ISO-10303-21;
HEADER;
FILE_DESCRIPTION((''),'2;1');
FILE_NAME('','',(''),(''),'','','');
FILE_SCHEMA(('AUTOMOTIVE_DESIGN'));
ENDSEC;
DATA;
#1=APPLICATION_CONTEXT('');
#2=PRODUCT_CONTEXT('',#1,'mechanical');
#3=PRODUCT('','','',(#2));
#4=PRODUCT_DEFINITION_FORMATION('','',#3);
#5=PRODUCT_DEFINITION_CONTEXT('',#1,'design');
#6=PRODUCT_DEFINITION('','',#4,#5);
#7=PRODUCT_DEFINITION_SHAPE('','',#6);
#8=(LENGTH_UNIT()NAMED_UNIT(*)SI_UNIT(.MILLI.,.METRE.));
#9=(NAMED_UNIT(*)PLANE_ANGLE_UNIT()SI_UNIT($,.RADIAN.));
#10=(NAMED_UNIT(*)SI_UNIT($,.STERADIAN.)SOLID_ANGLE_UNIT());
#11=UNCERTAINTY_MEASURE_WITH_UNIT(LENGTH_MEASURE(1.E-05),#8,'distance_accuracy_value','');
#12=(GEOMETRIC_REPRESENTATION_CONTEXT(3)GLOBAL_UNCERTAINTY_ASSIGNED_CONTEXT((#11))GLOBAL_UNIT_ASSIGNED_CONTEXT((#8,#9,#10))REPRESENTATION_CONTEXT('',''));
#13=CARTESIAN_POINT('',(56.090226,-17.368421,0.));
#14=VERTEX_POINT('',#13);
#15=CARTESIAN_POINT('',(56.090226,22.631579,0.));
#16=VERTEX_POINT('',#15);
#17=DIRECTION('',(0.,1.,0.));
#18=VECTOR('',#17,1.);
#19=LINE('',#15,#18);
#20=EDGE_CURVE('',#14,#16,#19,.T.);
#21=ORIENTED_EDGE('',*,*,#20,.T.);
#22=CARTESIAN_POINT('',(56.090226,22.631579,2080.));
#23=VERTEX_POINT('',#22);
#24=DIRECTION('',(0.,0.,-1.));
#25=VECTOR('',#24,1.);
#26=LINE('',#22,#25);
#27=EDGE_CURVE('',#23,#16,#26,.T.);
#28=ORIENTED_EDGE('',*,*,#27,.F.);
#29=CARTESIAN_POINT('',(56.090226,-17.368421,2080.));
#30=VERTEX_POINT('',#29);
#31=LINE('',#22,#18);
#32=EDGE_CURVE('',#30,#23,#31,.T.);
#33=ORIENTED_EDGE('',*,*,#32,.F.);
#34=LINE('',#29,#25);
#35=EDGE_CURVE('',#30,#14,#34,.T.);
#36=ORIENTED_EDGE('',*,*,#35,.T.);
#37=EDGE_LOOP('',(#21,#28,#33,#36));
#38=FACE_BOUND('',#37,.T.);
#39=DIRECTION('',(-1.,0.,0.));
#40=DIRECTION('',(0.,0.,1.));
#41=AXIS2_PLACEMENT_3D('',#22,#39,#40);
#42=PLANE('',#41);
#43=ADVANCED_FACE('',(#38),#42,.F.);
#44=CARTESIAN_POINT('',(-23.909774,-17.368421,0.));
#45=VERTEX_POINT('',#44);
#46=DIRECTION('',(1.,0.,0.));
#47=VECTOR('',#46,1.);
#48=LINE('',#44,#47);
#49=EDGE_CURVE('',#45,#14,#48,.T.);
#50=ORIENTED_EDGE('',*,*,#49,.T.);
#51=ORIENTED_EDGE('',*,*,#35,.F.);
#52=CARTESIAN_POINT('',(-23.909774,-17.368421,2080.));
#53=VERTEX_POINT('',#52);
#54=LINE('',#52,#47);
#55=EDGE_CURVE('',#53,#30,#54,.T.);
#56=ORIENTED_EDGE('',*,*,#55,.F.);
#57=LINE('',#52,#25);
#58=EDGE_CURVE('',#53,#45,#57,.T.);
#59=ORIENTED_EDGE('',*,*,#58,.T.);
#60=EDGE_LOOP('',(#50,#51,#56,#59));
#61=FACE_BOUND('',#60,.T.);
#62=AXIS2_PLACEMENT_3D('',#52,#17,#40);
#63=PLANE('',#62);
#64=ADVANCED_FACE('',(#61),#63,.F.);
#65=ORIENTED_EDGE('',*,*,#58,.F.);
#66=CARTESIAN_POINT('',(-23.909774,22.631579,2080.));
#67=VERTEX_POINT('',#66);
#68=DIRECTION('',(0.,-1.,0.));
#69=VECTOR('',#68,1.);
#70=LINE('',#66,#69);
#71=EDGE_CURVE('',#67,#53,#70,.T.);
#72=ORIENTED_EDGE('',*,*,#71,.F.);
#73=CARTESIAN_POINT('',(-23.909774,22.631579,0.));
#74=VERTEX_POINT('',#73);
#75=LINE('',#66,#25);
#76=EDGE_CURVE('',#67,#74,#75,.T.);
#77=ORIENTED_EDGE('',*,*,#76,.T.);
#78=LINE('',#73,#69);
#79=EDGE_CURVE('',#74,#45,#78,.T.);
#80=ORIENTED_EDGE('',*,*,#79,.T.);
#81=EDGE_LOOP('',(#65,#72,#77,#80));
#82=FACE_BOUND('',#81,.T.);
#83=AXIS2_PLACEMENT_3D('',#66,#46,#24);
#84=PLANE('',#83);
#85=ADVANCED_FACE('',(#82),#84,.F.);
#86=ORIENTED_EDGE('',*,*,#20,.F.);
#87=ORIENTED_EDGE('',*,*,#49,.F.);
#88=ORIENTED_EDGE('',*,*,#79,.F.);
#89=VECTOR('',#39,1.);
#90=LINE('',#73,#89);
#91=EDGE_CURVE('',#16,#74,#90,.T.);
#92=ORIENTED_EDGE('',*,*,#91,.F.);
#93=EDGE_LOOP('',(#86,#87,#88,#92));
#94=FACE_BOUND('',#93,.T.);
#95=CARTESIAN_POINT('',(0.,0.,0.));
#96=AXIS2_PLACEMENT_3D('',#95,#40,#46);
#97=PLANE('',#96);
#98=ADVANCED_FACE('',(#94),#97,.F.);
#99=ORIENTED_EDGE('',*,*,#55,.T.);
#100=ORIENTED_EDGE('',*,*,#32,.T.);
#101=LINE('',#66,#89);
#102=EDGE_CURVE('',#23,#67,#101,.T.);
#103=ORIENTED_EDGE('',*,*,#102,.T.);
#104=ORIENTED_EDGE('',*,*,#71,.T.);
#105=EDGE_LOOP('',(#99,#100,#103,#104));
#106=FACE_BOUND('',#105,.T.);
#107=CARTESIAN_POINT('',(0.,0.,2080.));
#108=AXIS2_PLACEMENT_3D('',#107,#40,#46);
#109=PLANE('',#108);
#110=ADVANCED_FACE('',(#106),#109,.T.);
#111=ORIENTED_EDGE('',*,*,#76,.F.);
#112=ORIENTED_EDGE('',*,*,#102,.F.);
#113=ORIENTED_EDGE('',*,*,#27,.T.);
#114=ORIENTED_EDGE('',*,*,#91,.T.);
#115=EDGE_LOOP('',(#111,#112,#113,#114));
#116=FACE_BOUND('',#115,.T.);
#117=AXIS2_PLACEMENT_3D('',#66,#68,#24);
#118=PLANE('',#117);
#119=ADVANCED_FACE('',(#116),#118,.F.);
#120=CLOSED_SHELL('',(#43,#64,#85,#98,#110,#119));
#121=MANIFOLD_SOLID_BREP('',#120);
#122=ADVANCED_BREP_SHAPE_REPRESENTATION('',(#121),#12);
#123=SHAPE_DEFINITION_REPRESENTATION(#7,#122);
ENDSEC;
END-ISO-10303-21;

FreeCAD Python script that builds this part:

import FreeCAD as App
import Part
import Sketcher
Q = App.Units.Quantity


def add_polygon(sketch, points):
    """Adds a closed chain of lines whose ends are joined by coincident constraints."""
    first, n = sketch.GeometryCount, len(points)
    for a, b in zip(points, points[1:] + points[:1]):
        sketch.addGeometry(Part.LineSegment(App.Vector(*a, 0), App.Vector(*b, 0)), False)
    for i in range(n):
        sketch.addConstraint(Sketcher.Constraint("Coincident", first + i, 2, first + (i + 1) % n, 1))

doc = App.newDocument("Part")
body = doc.addObject("PartDesign::Body", "Body")

sketch1 = doc.addObject("Sketcher::SketchObject", "Sketch")
body.addObject(sketch1)
sketch1.AttachmentSupport = (doc.XY_Plane, [""])
sketch1.MapMode = "FlatFace"
add_polygon(sketch1, [(-24, 23), (-24, -17), (56, -17), (56, 23)])
sketch1.addConstraint([
    Sketcher.Constraint("Vertical", 0),
    Sketcher.Constraint("Horizontal", 1),
    Sketcher.Constraint("Vertical", 2),
    Sketcher.Constraint("Horizontal", 3),
    Sketcher.Constraint("DistanceX", 1, 1, 1, 2, Q("80 mm")),
    Sketcher.Constraint("DistanceY", 0, 2, 0, 1, Q("40 mm")),
    Sketcher.Constraint("DistanceY", 0, 2, -1, 1, Q("17.368421 mm")),
    Sketcher.Constraint("DistanceX", 0, 2, -1, 1, Q("23.909774 mm")),
])
pad1 = doc.addObject("PartDesign::Pad", "Pad")
body.addObject(pad1)
pad1.Profile = sketch1
pad1.Length = 2080

doc.recompute()
